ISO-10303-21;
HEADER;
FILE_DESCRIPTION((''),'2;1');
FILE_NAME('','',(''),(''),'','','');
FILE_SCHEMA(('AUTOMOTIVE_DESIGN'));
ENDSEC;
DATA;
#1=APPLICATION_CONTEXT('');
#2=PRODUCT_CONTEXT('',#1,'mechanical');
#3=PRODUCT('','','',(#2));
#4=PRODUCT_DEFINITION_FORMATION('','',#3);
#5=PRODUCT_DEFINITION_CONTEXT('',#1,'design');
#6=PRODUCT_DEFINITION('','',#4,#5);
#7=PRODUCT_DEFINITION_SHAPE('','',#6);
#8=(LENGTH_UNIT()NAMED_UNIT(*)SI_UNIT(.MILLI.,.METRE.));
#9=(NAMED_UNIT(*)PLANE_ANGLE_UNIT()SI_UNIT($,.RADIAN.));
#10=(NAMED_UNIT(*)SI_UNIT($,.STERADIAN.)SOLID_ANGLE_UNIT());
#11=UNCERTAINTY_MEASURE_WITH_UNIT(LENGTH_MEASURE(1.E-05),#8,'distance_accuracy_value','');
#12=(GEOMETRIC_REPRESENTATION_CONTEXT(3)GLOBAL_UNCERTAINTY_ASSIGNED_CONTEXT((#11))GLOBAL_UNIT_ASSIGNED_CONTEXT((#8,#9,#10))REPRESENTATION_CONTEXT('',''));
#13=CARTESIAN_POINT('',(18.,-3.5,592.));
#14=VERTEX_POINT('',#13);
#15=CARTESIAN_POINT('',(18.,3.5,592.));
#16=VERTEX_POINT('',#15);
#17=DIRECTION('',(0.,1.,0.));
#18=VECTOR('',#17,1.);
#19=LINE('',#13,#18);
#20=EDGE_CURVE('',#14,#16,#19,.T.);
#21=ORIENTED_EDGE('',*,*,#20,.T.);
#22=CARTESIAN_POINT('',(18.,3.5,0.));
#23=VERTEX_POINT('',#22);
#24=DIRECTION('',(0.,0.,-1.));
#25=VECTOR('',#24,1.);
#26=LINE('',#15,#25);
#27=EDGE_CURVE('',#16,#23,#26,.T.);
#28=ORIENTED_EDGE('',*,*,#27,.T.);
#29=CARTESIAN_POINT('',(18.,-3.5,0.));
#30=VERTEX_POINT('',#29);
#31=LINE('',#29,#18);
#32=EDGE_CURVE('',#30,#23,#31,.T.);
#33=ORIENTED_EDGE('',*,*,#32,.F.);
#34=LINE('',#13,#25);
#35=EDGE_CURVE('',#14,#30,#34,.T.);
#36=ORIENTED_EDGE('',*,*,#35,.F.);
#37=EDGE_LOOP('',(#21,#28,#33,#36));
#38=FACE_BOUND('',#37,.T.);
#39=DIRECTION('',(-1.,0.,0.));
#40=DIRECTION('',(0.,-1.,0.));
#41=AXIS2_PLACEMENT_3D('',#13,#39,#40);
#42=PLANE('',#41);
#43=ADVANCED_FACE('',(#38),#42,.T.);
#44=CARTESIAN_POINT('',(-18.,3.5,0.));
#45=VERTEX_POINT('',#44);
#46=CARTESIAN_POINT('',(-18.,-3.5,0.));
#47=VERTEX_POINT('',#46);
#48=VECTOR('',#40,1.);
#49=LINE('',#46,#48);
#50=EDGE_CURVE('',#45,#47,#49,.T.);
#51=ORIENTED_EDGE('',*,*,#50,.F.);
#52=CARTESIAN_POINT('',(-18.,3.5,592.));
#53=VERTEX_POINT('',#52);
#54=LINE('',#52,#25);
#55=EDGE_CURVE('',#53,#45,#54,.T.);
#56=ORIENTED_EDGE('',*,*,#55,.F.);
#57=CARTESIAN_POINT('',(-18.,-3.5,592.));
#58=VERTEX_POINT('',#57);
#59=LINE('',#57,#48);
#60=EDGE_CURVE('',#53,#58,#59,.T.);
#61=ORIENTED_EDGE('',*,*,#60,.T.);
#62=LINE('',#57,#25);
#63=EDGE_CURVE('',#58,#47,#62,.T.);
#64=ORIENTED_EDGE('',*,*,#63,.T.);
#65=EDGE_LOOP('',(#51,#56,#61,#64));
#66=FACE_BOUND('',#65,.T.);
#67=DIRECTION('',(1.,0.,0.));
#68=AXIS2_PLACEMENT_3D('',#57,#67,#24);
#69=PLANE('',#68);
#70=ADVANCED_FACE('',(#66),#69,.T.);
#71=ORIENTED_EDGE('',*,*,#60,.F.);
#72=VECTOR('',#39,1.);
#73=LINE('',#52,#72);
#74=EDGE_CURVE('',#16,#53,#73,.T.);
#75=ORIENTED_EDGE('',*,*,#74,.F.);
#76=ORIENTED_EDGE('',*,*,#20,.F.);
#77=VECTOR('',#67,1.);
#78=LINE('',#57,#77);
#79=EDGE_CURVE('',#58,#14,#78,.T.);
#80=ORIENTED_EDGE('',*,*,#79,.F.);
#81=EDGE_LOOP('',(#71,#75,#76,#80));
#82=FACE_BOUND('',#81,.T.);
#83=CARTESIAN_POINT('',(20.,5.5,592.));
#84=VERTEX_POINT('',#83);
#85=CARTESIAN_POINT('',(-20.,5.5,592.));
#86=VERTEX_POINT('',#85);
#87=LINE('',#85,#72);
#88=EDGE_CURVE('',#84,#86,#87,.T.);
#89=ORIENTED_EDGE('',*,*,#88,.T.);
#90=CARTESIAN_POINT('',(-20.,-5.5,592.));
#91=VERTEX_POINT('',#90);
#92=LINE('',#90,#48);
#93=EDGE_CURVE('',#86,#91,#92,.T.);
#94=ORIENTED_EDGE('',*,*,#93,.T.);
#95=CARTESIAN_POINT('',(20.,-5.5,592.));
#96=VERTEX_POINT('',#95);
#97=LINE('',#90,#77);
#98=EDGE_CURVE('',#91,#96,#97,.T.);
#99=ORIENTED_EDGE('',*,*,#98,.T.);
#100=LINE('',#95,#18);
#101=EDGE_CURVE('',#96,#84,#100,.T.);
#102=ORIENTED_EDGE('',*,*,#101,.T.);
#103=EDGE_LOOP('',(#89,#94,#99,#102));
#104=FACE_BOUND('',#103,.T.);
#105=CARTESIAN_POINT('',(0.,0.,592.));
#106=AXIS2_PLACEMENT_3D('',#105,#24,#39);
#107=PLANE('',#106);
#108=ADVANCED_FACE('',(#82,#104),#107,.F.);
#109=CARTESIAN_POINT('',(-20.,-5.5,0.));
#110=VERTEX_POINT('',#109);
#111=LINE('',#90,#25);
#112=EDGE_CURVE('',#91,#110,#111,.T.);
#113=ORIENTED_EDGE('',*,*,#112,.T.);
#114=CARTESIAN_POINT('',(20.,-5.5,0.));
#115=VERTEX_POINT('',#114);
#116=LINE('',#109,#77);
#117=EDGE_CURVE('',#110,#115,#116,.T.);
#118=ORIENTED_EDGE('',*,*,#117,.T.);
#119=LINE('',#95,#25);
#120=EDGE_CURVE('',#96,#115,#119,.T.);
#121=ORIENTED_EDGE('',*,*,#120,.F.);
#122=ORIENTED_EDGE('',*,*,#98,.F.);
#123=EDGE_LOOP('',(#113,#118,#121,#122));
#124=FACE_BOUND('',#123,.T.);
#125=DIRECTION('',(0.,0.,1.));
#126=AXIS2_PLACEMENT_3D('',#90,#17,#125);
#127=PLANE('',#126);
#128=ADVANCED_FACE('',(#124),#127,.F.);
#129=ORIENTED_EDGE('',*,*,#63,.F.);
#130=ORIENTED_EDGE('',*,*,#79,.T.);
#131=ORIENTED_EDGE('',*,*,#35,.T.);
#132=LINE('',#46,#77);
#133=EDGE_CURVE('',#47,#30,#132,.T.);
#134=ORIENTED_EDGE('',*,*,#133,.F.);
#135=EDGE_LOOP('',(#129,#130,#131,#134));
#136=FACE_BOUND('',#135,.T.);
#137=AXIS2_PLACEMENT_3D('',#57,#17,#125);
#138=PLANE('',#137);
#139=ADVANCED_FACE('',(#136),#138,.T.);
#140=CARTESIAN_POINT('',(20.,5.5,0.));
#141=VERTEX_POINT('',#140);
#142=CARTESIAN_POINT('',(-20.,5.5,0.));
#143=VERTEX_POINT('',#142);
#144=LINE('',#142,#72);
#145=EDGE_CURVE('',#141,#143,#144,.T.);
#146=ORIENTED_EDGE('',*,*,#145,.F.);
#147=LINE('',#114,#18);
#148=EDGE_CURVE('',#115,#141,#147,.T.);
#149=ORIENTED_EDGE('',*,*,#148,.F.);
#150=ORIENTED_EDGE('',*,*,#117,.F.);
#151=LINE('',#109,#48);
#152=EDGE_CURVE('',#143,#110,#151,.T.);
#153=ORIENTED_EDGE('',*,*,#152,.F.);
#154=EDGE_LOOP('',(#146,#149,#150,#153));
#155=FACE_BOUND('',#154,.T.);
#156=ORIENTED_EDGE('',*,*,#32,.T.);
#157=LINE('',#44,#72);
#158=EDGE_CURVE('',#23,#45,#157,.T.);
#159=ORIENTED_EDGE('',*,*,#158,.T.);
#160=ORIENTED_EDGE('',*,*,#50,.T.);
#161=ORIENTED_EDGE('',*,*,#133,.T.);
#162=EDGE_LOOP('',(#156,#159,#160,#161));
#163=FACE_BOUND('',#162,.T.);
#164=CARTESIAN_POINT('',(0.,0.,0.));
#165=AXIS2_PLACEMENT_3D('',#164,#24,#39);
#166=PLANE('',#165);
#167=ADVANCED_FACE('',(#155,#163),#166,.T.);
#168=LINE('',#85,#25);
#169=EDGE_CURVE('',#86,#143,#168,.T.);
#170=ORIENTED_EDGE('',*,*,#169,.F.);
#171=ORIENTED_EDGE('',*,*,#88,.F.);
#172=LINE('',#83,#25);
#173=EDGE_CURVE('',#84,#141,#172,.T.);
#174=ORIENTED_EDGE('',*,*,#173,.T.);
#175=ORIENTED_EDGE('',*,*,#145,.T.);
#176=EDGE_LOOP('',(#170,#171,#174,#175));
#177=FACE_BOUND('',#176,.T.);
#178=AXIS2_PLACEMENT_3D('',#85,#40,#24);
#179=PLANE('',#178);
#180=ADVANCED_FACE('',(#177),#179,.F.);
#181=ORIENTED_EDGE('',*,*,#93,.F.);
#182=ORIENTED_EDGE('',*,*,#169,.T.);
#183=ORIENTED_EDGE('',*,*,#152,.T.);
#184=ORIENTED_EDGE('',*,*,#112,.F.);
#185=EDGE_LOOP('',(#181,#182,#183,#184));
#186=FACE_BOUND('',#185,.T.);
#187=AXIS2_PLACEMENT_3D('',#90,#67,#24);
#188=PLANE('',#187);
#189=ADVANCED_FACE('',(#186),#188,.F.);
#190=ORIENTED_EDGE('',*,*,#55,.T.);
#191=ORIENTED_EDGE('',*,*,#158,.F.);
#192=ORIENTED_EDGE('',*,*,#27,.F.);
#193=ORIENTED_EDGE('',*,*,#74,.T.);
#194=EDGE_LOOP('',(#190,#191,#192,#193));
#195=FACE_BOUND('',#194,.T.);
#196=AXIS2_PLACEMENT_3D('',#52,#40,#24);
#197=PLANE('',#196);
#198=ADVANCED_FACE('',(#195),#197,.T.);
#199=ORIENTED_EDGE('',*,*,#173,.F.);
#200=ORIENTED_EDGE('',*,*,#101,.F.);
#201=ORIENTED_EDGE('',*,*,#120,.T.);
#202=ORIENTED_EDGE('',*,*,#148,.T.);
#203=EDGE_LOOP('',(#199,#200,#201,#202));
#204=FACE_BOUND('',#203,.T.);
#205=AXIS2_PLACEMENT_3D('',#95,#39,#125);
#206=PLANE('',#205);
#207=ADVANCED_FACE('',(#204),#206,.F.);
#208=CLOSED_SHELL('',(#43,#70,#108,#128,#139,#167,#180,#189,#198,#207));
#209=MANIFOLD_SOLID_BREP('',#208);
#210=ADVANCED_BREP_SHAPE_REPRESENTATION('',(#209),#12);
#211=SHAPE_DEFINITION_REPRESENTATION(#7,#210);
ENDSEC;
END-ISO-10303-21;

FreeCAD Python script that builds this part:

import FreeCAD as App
import Part
import Sketcher

doc = App.newDocument("Part")
body = doc.addObject("PartDesign::Body", "Body")

sketch1 = body.newObject("Sketcher::SketchObject", "Sketch")
sketch1.AttachmentSupport = (doc.getObject("XY_Plane"), [""])
sketch1.MapMode = "FlatFace"
sketch1.addGeometry([
    Part.LineSegment(App.Vector(-20, 6, 0), App.Vector(-20, -6, 0)),
    Part.LineSegment(App.Vector(-20, -6, 0), App.Vector(20, -6, 0)),
    Part.LineSegment(App.Vector(20, -6, 0), App.Vector(20, 6, 0)),
    Part.LineSegment(App.Vector(20, 6, 0), App.Vector(-20, 6, 0)),
    Part.LineSegment(App.Vector(18, -4, 0), App.Vector(-18, -4, 0)),
    Part.LineSegment(App.Vector(-18, -4, 0), App.Vector(-18, 4, 0)),
    Part.LineSegment(App.Vector(-18, 4, 0), App.Vector(18, 4, 0)),
    Part.LineSegment(App.Vector(18, 4, 0), App.Vector(18, -4, 0)),
], False)
sketch1.addConstraint([
    Sketcher.Constraint("Coincident", 0, 2, 1, 1),
    Sketcher.Constraint("Coincident", 1, 2, 2, 1),
    Sketcher.Constraint("Coincident", 2, 2, 3, 1),
    Sketcher.Constraint("Coincident", 3, 2, 0, 1),
    Sketcher.Constraint("Coincident", 4, 2, 5, 1),
    Sketcher.Constraint("Coincident", 5, 2, 6, 1),
    Sketcher.Constraint("Coincident", 6, 2, 7, 1),
    Sketcher.Constraint("Coincident", 7, 2, 4, 1),
    Sketcher.Constraint("Vertical", 0),
    Sketcher.Constraint("Horizontal", 1),
    Sketcher.Constraint("Vertical", 2),
    Sketcher.Constraint("Horizontal", 3),
    Sketcher.Constraint("Horizontal", 4),
    Sketcher.Constraint("Vertical", 5),
    Sketcher.Constraint("Horizontal", 6),
    Sketcher.Constraint("Vertical", 7),
    Sketcher.Constraint("Symmetric", 0, 2, 2, 2, -1, 1),
    Sketcher.Constraint("Symmetric", 4, 2, 6, 2, -1, 1),
    Sketcher.Constraint("DistanceX", 1, 1, 1, 2, 40.0),
    Sketcher.Constraint("DistanceX", 4, 2, 4, 1, 36.0),
    Sketcher.Constraint("DistanceY", 0, 2, 0, 1, 11.0),
    Sketcher.Constraint("DistanceY", 5, 1, 5, 2, 7.0),
])
pad1 = body.newObject("PartDesign::Pad", "Pad")
pad1.Profile = sketch1
pad1.Length = 592

doc.recompute()
